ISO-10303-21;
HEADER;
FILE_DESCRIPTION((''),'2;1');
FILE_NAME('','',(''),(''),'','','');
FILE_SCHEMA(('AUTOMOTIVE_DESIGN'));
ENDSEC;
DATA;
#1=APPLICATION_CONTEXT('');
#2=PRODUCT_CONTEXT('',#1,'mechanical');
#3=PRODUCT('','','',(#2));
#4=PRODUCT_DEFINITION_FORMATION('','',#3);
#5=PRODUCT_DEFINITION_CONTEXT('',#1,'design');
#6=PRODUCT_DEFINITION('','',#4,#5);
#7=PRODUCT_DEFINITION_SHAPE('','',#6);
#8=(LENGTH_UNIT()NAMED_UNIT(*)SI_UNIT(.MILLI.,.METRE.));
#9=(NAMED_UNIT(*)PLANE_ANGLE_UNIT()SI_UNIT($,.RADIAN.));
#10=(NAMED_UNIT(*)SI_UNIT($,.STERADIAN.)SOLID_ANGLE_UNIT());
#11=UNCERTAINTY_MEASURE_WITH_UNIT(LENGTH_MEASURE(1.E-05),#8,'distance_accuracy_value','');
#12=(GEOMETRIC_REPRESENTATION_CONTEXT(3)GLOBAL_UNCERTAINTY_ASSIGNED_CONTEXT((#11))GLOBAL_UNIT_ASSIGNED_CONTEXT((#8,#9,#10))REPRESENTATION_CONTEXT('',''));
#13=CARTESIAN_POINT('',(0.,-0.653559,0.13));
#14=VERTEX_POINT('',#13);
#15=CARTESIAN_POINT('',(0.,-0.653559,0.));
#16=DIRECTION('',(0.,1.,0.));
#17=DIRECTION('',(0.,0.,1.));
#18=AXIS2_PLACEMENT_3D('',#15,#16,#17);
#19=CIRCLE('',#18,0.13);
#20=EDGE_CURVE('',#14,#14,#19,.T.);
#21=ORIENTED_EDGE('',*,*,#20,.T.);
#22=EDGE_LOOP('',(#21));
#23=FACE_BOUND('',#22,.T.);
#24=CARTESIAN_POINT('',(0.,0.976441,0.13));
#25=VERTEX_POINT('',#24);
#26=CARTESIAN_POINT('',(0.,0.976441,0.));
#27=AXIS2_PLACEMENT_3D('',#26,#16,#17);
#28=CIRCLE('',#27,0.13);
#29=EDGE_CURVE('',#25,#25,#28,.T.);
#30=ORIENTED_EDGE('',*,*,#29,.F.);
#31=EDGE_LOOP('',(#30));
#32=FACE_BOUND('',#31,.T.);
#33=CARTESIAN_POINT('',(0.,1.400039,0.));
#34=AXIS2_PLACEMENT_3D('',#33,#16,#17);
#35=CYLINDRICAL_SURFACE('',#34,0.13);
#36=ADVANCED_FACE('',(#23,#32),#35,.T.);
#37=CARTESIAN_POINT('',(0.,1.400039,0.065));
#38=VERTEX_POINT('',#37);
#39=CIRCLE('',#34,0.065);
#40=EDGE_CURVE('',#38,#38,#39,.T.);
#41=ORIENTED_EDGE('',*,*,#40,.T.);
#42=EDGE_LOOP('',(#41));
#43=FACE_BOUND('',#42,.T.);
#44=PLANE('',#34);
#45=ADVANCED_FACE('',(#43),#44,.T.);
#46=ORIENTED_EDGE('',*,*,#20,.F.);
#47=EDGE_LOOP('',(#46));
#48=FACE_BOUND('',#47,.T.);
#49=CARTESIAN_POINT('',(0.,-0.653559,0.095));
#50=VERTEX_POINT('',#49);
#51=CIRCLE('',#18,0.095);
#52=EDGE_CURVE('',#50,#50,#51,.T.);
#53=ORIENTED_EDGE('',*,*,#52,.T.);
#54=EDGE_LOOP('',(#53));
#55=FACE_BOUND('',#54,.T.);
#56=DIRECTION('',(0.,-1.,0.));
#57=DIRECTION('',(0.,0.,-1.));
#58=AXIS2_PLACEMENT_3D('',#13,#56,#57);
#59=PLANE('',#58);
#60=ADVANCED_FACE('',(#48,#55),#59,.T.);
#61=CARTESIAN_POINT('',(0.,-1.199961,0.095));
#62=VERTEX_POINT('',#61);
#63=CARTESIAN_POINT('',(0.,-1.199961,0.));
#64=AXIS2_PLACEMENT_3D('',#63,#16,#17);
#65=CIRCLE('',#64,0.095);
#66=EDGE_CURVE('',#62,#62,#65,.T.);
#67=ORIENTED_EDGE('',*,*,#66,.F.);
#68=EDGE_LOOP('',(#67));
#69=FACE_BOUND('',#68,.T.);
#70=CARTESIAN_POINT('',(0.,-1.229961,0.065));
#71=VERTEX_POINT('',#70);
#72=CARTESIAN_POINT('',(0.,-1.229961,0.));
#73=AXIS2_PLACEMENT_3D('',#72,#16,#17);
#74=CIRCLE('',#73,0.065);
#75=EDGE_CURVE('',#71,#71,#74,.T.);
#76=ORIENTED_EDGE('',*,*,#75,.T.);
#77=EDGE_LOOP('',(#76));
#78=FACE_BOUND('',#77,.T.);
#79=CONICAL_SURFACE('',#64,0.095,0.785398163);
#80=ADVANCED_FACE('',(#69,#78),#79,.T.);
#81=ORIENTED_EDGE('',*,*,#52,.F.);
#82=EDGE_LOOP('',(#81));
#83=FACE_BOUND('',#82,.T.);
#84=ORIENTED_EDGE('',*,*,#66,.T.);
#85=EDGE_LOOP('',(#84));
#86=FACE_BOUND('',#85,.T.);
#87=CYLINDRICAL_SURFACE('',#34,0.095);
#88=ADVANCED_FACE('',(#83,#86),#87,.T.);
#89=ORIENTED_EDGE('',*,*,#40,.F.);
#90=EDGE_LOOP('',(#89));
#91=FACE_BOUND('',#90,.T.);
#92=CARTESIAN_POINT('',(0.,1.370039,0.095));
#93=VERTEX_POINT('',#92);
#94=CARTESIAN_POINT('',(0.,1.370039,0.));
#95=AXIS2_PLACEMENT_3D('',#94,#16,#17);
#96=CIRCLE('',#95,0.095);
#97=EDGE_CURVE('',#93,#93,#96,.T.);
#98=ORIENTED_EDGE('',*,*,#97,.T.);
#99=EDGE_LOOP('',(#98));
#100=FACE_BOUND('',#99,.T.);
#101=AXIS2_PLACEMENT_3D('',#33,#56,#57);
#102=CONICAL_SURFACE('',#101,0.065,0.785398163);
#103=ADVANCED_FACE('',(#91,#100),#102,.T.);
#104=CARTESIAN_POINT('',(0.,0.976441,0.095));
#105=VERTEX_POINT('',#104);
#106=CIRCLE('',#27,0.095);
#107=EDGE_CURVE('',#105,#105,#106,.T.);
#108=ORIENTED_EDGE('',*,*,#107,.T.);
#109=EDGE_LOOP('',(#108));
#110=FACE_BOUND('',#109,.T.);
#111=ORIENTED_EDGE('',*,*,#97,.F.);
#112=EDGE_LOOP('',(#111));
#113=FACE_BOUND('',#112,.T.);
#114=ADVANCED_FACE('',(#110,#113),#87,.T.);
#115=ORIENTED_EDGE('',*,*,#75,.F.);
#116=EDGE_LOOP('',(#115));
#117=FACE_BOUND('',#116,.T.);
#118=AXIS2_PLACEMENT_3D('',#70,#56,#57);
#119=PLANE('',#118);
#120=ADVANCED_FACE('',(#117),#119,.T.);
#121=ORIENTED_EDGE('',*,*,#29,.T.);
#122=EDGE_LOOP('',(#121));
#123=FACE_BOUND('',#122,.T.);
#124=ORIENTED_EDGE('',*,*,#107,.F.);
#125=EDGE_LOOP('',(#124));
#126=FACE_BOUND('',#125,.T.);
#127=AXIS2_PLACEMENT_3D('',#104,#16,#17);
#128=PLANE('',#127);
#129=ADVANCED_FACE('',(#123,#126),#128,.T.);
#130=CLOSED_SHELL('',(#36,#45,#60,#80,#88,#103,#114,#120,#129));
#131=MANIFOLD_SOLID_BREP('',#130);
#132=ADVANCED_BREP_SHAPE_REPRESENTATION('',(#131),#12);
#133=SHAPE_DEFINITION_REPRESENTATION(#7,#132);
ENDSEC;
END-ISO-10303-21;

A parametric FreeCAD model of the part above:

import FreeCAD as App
import Part
import Sketcher

V = App.Vector

doc = App.newDocument("Part")
body = doc.addObject("PartDesign::Body", "Body")

sketch1 = body.newObject("Sketcher::SketchObject", "Sketch")
sketch1.AttachmentSupport = (doc.getObject("YZ_Plane"), [""])
sketch1.MapMode = "FlatFace"
sketch1.addGeometry([
    Part.LineSegment(V(1.400039, 0, 0), V(1.400039, 0.065, 0)),
    Part.LineSegment(V(1.400039, 0.065, 0), V(1.370039, 0.095, 0)),
    Part.LineSegment(V(1.370039, 0.095, 0), V(0.976441, 0.095, 0)),
    Part.LineSegment(V(0.976441, 0.095, 0), V(0.976441, 0.13, 0)),
    Part.LineSegment(V(0.976441, 0.13, 0), V(-0.653559, 0.13, 0)),
    Part.LineSegment(V(-0.653559, 0.13, 0), V(-0.653559, 0.095, 0)),
    Part.LineSegment(V(-0.653559, 0.095, 0), V(-1.199961, 0.095, 0)),
    Part.LineSegment(V(-1.199961, 0.095, 0), V(-1.229961, 0.065, 0)),
    Part.LineSegment(V(-1.229961, 0.065, 0), V(-1.229961, 0, 0)),
    Part.LineSegment(V(-1.229961, 0, 0), V(1.400039, 0, 0)),
], False)
sketch1.addConstraint([
    Sketcher.Constraint("Coincident", 0, 2, 1, 1),
    Sketcher.Constraint("Coincident", 1, 2, 2, 1),
    Sketcher.Constraint("Coincident", 2, 2, 3, 1),
    Sketcher.Constraint("Coincident", 3, 2, 4, 1),
    Sketcher.Constraint("Coincident", 4, 2, 5, 1),
    Sketcher.Constraint("Coincident", 5, 2, 6, 1),
    Sketcher.Constraint("Coincident", 6, 2, 7, 1),
    Sketcher.Constraint("Coincident", 7, 2, 8, 1),
    Sketcher.Constraint("Coincident", 8, 2, 9, 1),
    Sketcher.Constraint("Coincident", 9, 2, 0, 1),
    Sketcher.Constraint("Vertical", 0),
    Sketcher.Constraint("Horizontal", 2),
    Sketcher.Constraint("Vertical", 3),
    Sketcher.Constraint("Horizontal", 4),
    Sketcher.Constraint("Vertical", 5),
    Sketcher.Constraint("Horizontal", 6),
    Sketcher.Constraint("Vertical", 8),
    Sketcher.Constraint("Horizontal", 9),
    Sketcher.Constraint("PointOnObject", 8, 2, -1),
    Sketcher.Constraint("Perpendicular", 1, 7),
    Sketcher.Constraint("Horizontal", 2, 2, 5, 2),
    Sketcher.Constraint("Horizontal", 0, 2, 7, 2),
    Sketcher.Constraint("Equal", 1, 7),
    Sketcher.Constraint("DistanceX", 4, 2, 4, 1, 1.63),
    Sketcher.Constraint("DistanceX", 9, 1, 9, 2, 2.63),
    Sketcher.Constraint("DistanceY", 0, 1, 0, 2, 0.065),
    Sketcher.Constraint("DistanceY", 3, 1, 3, 2, 0.035),
    Sketcher.Constraint("DistanceY", -1, 1, 3, 2, 0.13),
    Sketcher.Constraint("DistanceX", 2, 2, 2, 1, 0.393599),
    Sketcher.Constraint("DistanceX", -1, 1, 0, 2, 1.400039),
])
revolution = body.newObject("PartDesign::Revolution", "Revolution")
revolution.Profile = sketch1
revolution.ReferenceAxis = (sketch1, ["H_Axis"])
revolution.Angle = 360

doc.recompute()
